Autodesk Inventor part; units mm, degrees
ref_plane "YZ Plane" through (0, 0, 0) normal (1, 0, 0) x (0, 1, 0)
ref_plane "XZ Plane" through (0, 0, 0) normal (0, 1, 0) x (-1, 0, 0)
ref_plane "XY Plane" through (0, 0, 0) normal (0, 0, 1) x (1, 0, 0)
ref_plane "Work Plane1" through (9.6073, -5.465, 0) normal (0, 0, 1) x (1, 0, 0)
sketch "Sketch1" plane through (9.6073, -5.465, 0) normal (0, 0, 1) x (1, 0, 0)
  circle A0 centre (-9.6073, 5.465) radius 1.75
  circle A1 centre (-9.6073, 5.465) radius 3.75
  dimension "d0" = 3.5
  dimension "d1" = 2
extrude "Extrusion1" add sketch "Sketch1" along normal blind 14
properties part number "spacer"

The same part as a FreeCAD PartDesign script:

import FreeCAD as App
import Part
import Sketcher
Q = App.Units.Quantity

doc = App.newDocument("Part")
body = doc.addObject("PartDesign::Body", "Body")

sketch1 = body.newObject("Sketcher::SketchObject", "Sketch")
sketch1.AttachmentSupport = (doc.getObject("XY_Plane"), [""])
sketch1.MapMode = "FlatFace"
sketch1.addGeometry([
    Part.Circle(App.Vector(0, 0, 0), App.Vector(0, 0, 1), 3.75),
    Part.Circle(App.Vector(0, 0, 0), App.Vector(0, 0, 1), 1.75),
], False)
sketch1.addConstraint([
    Sketcher.Constraint("Coincident", 0, 3, -1, 1),
    Sketcher.Constraint("Coincident", 1, 3, -1, 1),
    Sketcher.Constraint("Diameter", 1, Q("3.5 mm")),
    Sketcher.Constraint("Diameter", 0, Q("7.5 mm")),
])
pad1 = body.newObject("PartDesign::Pad", "Pad")
pad1.Profile = sketch1
pad1.Length = 14

doc.recompute()
